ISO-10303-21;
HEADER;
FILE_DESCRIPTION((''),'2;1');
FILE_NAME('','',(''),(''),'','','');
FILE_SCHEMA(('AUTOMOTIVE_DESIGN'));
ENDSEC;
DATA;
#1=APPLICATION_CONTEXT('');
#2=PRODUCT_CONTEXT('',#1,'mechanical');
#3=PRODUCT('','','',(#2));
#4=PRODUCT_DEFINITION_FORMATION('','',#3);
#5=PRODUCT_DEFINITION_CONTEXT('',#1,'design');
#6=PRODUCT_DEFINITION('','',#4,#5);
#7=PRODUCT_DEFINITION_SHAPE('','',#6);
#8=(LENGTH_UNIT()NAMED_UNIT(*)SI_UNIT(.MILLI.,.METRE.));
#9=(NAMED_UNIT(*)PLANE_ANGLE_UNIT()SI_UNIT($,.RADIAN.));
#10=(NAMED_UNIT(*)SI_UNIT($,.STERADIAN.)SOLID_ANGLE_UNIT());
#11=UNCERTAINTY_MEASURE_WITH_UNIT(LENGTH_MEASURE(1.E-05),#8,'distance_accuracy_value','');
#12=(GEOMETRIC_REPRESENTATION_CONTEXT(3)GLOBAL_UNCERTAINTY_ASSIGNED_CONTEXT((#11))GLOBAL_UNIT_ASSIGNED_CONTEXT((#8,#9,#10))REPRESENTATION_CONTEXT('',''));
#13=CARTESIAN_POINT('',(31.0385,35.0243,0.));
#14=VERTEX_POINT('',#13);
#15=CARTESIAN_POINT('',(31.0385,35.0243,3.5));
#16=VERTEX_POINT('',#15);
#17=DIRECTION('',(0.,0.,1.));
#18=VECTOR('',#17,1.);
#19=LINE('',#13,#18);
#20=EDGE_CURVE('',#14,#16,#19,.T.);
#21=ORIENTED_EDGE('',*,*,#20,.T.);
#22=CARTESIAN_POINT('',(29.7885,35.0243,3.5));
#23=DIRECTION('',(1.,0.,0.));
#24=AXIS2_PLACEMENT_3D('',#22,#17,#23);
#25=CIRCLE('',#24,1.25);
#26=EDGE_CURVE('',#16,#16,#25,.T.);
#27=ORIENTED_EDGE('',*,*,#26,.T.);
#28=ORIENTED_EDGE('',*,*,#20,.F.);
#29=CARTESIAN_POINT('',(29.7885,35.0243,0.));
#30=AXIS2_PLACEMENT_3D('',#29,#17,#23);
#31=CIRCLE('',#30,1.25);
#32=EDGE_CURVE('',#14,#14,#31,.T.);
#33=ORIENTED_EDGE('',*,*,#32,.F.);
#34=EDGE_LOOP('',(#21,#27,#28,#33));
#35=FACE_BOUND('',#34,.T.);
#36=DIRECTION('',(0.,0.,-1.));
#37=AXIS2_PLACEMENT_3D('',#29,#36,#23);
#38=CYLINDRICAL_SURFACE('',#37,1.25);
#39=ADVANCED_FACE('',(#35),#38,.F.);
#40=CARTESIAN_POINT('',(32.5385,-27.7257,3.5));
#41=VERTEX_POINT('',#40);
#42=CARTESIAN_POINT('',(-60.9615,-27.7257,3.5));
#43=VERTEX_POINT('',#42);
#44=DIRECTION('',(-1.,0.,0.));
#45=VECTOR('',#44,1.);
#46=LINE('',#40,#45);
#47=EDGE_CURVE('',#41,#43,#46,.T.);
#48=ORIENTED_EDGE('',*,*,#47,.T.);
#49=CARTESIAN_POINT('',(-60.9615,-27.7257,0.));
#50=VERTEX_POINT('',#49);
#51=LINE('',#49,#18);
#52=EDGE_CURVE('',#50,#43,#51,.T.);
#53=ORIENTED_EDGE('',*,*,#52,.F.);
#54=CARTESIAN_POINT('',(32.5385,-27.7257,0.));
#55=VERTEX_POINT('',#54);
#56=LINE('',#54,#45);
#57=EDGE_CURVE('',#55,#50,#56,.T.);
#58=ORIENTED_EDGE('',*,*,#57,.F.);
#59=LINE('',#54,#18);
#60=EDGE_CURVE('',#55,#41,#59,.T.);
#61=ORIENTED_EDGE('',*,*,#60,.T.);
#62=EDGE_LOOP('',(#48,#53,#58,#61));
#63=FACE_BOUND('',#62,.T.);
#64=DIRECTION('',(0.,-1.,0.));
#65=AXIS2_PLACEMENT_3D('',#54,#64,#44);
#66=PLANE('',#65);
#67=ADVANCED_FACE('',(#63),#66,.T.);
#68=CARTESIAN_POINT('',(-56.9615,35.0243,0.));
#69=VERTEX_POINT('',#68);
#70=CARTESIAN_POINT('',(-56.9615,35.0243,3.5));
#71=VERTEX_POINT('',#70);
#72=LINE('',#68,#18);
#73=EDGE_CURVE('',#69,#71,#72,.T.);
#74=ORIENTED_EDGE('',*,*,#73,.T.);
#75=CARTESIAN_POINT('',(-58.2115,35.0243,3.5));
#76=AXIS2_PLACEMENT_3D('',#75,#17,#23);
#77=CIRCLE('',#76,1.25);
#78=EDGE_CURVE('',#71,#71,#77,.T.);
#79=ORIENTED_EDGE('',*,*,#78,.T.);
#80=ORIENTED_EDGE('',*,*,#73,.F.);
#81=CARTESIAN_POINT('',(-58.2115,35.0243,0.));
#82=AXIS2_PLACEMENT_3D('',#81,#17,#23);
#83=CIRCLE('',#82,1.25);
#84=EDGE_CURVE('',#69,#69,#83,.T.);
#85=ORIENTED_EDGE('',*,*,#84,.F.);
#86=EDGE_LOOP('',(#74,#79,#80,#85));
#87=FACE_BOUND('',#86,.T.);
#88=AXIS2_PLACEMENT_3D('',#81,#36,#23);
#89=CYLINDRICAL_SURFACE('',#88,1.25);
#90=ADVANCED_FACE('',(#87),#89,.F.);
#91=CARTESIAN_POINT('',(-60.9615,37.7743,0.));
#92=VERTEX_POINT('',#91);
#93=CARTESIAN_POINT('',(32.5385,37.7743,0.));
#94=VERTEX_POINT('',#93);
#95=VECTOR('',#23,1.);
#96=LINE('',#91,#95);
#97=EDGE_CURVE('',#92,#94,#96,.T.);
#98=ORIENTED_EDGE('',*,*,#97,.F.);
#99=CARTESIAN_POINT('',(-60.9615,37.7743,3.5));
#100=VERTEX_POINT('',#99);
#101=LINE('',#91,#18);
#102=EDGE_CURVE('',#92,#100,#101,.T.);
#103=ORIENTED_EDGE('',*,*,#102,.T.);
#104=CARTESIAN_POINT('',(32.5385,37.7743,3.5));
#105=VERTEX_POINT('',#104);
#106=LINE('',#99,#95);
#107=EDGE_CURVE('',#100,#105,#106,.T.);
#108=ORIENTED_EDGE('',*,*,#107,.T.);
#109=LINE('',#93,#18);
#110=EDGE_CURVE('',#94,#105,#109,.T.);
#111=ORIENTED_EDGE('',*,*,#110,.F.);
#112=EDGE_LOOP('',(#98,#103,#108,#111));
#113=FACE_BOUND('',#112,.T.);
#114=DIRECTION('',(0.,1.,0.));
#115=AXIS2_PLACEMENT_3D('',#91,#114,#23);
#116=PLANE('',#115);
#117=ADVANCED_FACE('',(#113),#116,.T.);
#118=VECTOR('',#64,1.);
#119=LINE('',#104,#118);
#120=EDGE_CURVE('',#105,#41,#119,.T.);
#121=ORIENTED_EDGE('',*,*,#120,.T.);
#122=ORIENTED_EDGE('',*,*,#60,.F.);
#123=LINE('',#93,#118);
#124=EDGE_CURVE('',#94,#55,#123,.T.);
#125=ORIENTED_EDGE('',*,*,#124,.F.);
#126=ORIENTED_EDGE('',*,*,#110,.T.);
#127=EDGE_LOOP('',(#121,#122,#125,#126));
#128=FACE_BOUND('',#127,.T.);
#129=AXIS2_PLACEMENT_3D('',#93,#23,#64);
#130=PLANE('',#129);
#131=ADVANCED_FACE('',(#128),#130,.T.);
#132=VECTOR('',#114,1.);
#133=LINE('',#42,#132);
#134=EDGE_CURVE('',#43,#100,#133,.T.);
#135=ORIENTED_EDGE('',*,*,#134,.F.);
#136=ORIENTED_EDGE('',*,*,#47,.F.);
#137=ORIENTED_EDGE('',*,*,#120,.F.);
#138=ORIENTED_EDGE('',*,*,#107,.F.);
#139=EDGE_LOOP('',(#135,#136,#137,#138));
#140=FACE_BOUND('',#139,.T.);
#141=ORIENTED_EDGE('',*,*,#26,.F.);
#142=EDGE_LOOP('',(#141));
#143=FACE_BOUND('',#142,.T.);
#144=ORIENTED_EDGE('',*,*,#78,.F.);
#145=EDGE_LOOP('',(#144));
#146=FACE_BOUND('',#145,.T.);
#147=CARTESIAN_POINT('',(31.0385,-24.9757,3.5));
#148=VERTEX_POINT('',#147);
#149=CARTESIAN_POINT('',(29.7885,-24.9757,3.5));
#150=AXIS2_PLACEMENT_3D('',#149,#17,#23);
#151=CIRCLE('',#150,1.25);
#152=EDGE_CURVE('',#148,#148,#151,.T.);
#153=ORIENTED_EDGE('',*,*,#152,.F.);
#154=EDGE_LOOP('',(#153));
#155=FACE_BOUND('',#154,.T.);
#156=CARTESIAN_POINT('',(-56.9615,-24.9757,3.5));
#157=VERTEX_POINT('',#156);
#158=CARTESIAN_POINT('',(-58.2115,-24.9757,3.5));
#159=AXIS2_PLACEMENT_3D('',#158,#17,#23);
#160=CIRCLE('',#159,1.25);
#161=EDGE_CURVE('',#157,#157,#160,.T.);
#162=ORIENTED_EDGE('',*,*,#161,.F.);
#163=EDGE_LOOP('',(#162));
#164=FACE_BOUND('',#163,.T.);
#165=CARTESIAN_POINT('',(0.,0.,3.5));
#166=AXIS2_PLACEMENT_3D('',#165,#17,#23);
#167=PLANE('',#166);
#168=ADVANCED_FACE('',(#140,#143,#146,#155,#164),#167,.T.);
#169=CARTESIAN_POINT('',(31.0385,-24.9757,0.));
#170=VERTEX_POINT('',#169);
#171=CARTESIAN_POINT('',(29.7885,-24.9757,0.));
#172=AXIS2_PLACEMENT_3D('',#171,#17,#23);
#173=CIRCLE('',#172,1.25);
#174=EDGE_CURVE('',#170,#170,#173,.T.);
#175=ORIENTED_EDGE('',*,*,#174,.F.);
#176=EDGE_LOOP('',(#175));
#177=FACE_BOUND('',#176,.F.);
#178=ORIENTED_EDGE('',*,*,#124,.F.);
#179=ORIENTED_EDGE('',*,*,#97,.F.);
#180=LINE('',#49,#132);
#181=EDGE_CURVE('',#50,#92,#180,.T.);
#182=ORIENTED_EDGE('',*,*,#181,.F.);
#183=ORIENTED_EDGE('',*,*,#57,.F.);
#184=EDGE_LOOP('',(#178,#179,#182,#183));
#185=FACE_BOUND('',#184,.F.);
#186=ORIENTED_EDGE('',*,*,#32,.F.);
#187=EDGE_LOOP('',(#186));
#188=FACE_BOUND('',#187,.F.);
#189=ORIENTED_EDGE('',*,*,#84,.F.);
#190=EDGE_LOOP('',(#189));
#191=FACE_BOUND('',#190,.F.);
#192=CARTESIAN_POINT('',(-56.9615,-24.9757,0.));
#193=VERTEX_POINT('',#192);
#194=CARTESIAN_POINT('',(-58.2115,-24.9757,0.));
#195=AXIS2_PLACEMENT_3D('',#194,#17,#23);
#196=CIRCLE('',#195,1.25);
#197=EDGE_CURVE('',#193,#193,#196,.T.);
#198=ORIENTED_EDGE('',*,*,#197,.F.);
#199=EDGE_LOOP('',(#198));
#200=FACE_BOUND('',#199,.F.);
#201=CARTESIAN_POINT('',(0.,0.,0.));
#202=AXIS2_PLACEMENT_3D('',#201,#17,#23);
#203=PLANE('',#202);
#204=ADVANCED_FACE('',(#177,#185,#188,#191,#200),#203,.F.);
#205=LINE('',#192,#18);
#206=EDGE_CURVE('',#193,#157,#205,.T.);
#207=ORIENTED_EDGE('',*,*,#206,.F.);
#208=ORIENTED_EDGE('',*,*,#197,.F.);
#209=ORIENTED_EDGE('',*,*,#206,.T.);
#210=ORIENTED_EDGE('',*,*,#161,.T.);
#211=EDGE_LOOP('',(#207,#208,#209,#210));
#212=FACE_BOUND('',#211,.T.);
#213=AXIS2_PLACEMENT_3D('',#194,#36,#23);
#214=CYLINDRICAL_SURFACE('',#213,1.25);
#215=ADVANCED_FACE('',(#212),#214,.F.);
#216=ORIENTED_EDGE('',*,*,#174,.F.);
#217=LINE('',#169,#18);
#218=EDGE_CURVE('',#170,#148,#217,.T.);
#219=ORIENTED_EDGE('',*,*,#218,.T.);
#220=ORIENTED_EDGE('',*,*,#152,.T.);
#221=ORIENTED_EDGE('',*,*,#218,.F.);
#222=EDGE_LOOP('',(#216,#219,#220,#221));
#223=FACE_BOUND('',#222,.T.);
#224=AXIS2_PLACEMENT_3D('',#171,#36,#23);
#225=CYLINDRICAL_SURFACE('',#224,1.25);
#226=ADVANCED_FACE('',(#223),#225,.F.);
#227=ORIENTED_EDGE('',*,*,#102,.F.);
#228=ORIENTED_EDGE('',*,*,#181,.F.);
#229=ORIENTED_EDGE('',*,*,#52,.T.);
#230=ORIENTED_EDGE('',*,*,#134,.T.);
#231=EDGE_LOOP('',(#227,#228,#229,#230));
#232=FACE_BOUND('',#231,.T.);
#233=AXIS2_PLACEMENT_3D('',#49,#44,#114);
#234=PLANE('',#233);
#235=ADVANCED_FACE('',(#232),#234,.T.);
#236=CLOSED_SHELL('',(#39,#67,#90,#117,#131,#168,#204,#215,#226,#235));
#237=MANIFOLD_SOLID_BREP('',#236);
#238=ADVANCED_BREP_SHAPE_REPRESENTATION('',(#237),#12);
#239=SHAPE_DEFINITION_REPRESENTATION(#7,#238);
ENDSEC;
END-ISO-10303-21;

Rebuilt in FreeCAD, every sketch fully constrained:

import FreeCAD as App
import Part
import Sketcher

V = App.Vector
Q = App.Units.Quantity

doc = App.newDocument("Part")
body = doc.addObject("PartDesign::Body", "Body")

# Sketch on XY plane
sketch1 = doc.addObject("Sketcher::SketchObject", "Sketch")
body.addObject(sketch1)
sketch1.AttachmentSupport = (doc.XY_Plane, [""])
sketch1.MapMode = "FlatFace"
sketch1.addGeometry([
    Part.LineSegment(V(32.5385, 37.7743, 0), V(-60.9615, 37.7743, 0)),  # 0
    Part.LineSegment(V(-60.9615, 37.7743, 0), V(-60.9615, -27.7257, 0)),  # 1
    Part.LineSegment(V(-60.9615, -27.7257, 0), V(32.5385, -27.7257, 0)),  # 2
    Part.LineSegment(V(32.5385, -27.7257, 0), V(32.5385, 37.7743, 0)),  # 3
    Part.Circle(V(-58.2115, -24.9757, 0), V(0, 0, 1), 1.25),  # 4
    Part.Circle(V(29.7885, -24.9757, 0), V(0, 0, 1), 1.25),  # 5
    Part.Circle(V(-58.2115, 35.0243, 0), V(0, 0, 1), 1.25),  # 6
    Part.Circle(V(29.7885, 35.0243, 0), V(0, 0, 1), 1.25),  # 7
], False)
sketch1.addConstraint([
    Sketcher.Constraint("Coincident", 0, 2, 1, 1),
    Sketcher.Constraint("Coincident", 1, 2, 2, 1),
    Sketcher.Constraint("Coincident", 2, 2, 3, 1),
    Sketcher.Constraint("Coincident", 3, 2, 0, 1),
    Sketcher.Constraint("Horizontal", 0),
    Sketcher.Constraint("Vertical", 1),
    Sketcher.Constraint("Horizontal", 2),
    Sketcher.Constraint("Vertical", 3),
    Sketcher.Constraint("Equal", 4, 5),
    Sketcher.Constraint("Equal", 5, 6),
    Sketcher.Constraint("Equal", 6, 7),
    Sketcher.Constraint("Horizontal", 4, 3, 5, 3),
    Sketcher.Constraint("Horizontal", 6, 3, 7, 3),
    Sketcher.Constraint("Vertical", 4, 3, 6, 3),
    Sketcher.Constraint("Vertical", 5, 3, 7, 3),
    Sketcher.Constraint("Diameter", 4, Q("2.5 mm")),
    Sketcher.Constraint("DistanceX", 0, 2, 0, 1, Q("93.5 mm")),
    Sketcher.Constraint("DistanceY", 1, 2, 1, 1, Q("65.5 mm")),
    Sketcher.Constraint("DistanceX", 0, 2, 6, 3, Q("2.75 mm")),
    Sketcher.Constraint("DistanceY", 6, 3, 0, 2, Q("2.75 mm")),
    Sketcher.Constraint("DistanceY", 1, 2, 4, 3, Q("2.75 mm")),
    Sketcher.Constraint("DistanceX", 5, 3, 2, 2, Q("2.75 mm")),
    Sketcher.Constraint("DistanceX", 4, 3, -1, 1, Q("58.2115 mm")),
    Sketcher.Constraint("DistanceY", 4, 3, -1, 1, Q("24.9757 mm")),
])
pad1 = doc.addObject("PartDesign::Pad", "Pad")
body.addObject(pad1)
pad1.Profile = sketch1
pad1.Length = 3.5

doc.recompute()
